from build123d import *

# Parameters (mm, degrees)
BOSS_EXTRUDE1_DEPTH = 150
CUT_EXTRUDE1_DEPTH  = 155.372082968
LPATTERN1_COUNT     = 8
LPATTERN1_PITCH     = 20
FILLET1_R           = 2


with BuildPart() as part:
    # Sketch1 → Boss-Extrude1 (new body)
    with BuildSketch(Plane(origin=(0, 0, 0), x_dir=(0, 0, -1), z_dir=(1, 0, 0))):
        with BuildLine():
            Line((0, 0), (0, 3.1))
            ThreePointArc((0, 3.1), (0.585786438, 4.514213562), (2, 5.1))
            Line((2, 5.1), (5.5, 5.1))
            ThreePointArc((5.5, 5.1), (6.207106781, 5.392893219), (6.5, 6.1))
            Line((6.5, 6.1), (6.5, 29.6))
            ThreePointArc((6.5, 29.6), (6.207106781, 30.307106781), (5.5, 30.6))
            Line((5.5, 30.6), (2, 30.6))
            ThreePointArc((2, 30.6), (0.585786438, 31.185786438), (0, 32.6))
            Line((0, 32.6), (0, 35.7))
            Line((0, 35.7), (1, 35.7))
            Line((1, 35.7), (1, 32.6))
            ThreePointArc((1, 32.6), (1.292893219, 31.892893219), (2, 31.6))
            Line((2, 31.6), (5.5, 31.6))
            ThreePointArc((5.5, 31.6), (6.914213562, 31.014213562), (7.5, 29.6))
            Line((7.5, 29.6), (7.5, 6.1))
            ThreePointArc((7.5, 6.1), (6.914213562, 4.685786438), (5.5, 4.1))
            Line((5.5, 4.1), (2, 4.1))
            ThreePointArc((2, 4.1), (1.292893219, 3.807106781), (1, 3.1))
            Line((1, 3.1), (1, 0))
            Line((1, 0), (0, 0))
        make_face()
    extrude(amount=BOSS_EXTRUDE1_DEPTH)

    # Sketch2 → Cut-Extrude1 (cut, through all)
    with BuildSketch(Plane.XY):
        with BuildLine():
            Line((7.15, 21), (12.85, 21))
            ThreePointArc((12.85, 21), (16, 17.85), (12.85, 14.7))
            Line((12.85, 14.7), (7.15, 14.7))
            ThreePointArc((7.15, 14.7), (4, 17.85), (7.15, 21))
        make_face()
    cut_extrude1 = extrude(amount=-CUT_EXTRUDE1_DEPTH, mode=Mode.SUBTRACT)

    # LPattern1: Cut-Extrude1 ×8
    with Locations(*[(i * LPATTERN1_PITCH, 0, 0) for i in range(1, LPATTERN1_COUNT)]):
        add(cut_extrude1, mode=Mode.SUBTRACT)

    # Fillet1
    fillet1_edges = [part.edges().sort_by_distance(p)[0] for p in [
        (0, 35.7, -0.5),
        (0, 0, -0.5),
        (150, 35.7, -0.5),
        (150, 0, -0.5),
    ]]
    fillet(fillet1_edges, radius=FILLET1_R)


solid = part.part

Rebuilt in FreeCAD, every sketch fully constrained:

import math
import FreeCAD as App
import Part
import Sketcher

V = App.Vector
Q = App.Units.Quantity


def edges_at(feature, points):
    """Names of the edges that pass closest to the given points."""
    edges = feature.Shape.Edges
    near = lambda p: min(range(len(edges)), key=lambda i: edges[i].distToShape(Part.Vertex(*p))[0])
    return sorted({f"Edge{near(p) + 1}" for p in points})

doc = App.newDocument("Part")
params = doc.addObject("Spreadsheet::Sheet", "Params")
for row, (alias, value) in enumerate([
    ("sketch1_radius", "1 mm"),
    ("sketch1_radius2", "2 mm"),
    ("sketch1_width", "3.1 mm"),
    ("sketch1_width2", "23.5 mm"),
    ("sketch1_height", "3.5 mm"),
    ("pad1_length", "150 mm"),
    ("sketch2_radius", "3.15 mm"),
    ("sketch2_width", "5.7 mm"),
    ("linearpattern_pitch", "20 mm"),
    ("fillet_radius", "2 mm"),
], start=1):
    params.set(f"A{row}", alias)
    params.set(f"B{row}", "=" + value)
    params.setAlias(f"B{row}", alias)

body = doc.addObject("PartDesign::Body", "Body")

# Sketch on YZ plane
sketch1 = doc.addObject("Sketcher::SketchObject", "Sketch")
body.addObject(sketch1)
sketch1.AttachmentSupport = (doc.YZ_Plane, [""])
sketch1.MapMode = "FlatFace"
sketch1.addGeometry([
    Part.LineSegment(V(3.1, 0, 0), V(0, 0, 0)),  # 0
    Part.LineSegment(V(0, 0, 0), V(0, -1, 0)),  # 1
    Part.LineSegment(V(0, -1, 0), V(3.1, -1, 0)),  # 2
    Part.ArcOfCircle(Part.Circle(V(3.1, -2, 0), V(0, 0, 1), 1), math.radians(0), math.radians(90)),  # 3
    Part.LineSegment(V(4.1, -2, 0), V(4.1, -5.5, 0)),  # 4
    Part.ArcOfCircle(Part.Circle(V(6.1, -5.5, 0), V(0, 0, 1), 2), math.radians(-180), math.radians(-90)),  # 5
    Part.LineSegment(V(6.1, -7.5, 0), V(29.6, -7.5, 0)),  # 6
    Part.ArcOfCircle(Part.Circle(V(29.6, -5.5, 0), V(0, 0, 1), 2), math.radians(-90), math.radians(0)),  # 7
    Part.LineSegment(V(31.6, -5.5, 0), V(31.6, -2, 0)),  # 8
    Part.ArcOfCircle(Part.Circle(V(32.6, -2, 0), V(0, 0, 1), 1), math.radians(90), math.radians(180)),  # 9
    Part.LineSegment(V(32.6, -1, 0), V(35.7, -1, 0)),  # 10
    Part.LineSegment(V(35.7, -1, 0), V(35.7, 0, 0)),  # 11
    Part.LineSegment(V(35.7, 0, 0), V(32.6, 0, 0)),  # 12
    Part.ArcOfCircle(Part.Circle(V(32.6, -2, 0), V(0, 0, 1), 2), math.radians(90), math.radians(180)),  # 13
    Part.LineSegment(V(30.6, -2, 0), V(30.6, -5.5, 0)),  # 14
    Part.ArcOfCircle(Part.Circle(V(29.6, -5.5, 0), V(0, 0, 1), 1), math.radians(-90), math.radians(0)),  # 15
    Part.LineSegment(V(29.6, -6.5, 0), V(6.1, -6.5, 0)),  # 16
    Part.ArcOfCircle(Part.Circle(V(6.1, -5.5, 0), V(0, 0, 1), 1), math.radians(-180), math.radians(-90)),  # 17
    Part.LineSegment(V(5.1, -5.5, 0), V(5.1, -2, 0)),  # 18
    Part.ArcOfCircle(Part.Circle(V(3.1, -2, 0), V(0, 0, 1), 2), math.radians(0), math.radians(90)),  # 19
], False)
sketch1.addConstraint([
    Sketcher.Constraint("Coincident", 0, 2, 1, 1),
    Sketcher.Constraint("Coincident", 1, 2, 2, 1),
    Sketcher.Constraint("Tangent", 2, 2, 3, 2),
    Sketcher.Constraint("Tangent", 3, 1, 4, 1),
    Sketcher.Constraint("Tangent", 4, 2, 5, 1),
    Sketcher.Constraint("Tangent", 5, 2, 6, 1),
    Sketcher.Constraint("Tangent", 6, 2, 7, 1),
    Sketcher.Constraint("Tangent", 7, 2, 8, 1),
    Sketcher.Constraint("Tangent", 8, 2, 9, 2),
    Sketcher.Constraint("Tangent", 9, 1, 10, 1),
    Sketcher.Constraint("Coincident", 10, 2, 11, 1),
    Sketcher.Constraint("Coincident", 11, 2, 12, 1),
    Sketcher.Constraint("Tangent", 12, 2, 13, 1),
    Sketcher.Constraint("Tangent", 13, 2, 14, 1),
    Sketcher.Constraint("Tangent", 14, 2, 15, 2),
    Sketcher.Constraint("Tangent", 15, 1, 16, 1),
    Sketcher.Constraint("Tangent", 16, 2, 17, 2),
    Sketcher.Constraint("Tangent", 17, 1, 18, 1),
    Sketcher.Constraint("Tangent", 18, 2, 19, 1),
    Sketcher.Constraint("Tangent", 19, 2, 0, 1),
    Sketcher.Constraint("Horizontal", 0),
    Sketcher.Constraint("Vertical", 1),
    Sketcher.Constraint("Horizontal", 2),
    Sketcher.Constraint("Vertical", 4),
    Sketcher.Constraint("Horizontal", 6),
    Sketcher.Constraint("Vertical", 8),
    Sketcher.Constraint("Horizontal", 10),
    Sketcher.Constraint("Vertical", 11),
    Sketcher.Constraint("Horizontal", 12),
    Sketcher.Constraint("Vertical", 14),
    Sketcher.Constraint("Horizontal", 16),
    Sketcher.Constraint("Vertical", 18),
    Sketcher.Constraint("Coincident", 0, 2, -1, 1),
    Sketcher.Constraint("Coincident", 13, 3, 9, 3),
    Sketcher.Constraint("Coincident", 15, 3, 7, 3),
    Sketcher.Constraint("Coincident", 17, 3, 5, 3),
    Sketcher.Constraint("Coincident", 19, 3, 3, 3),
    Sketcher.Constraint("Equal", 5, 7),
    Sketcher.Constraint("Equal", 3, 9),
    Sketcher.Constraint("Equal", 7, 13),
    Sketcher.Constraint("PointOnObject", 11, 2, -1),
    Sketcher.Constraint("Equal", 2, 10),
    Sketcher.Constraint("Radius", 3, Q("1 mm")),
    Sketcher.Constraint("Radius", 5, Q("2 mm")),
    Sketcher.Constraint("DistanceX", 0, 2, 0, 1, Q("3.1 mm")),
    Sketcher.Constraint("DistanceX", 6, 1, 6, 2, Q("23.5 mm")),
    Sketcher.Constraint("DistanceY", 4, 2, 4, 1, Q("3.5 mm")),
])
sketch1.setExpression("Constraints[42]", "Params.sketch1_radius")
sketch1.setExpression("Constraints[43]", "Params.sketch1_radius2")
sketch1.setExpression("Constraints[44]", "Params.sketch1_width")
sketch1.setExpression("Constraints[45]", "Params.sketch1_width2")
sketch1.setExpression("Constraints[46]", "Params.sketch1_height")
pad1 = doc.addObject("PartDesign::Pad", "Pad")
body.addObject(pad1)
pad1.Profile = sketch1
pad1.setExpression("Length", "Params.pad1_length")

# Sketch on XY plane
sketch2 = doc.addObject("Sketcher::SketchObject", "Sketch001")
body.addObject(sketch2)
sketch2.AttachmentSupport = (doc.XY_Plane, [""])
sketch2.MapMode = "FlatFace"
sketch2.addGeometry([
    Part.LineSegment(V(12.8, 21, 0), V(7.2, 21, 0)),
    Part.ArcOfCircle(Part.Circle(V(7.2, 17.9, 0), V(0, 0, 1), 3.1), math.radians(90), math.radians(270)),
    Part.LineSegment(V(7.2, 14.7, 0), V(12.8, 14.7, 0)),
    Part.ArcOfCircle(Part.Circle(V(12.8, 17.9, 0), V(0, 0, 1), 3.1), math.radians(-90), math.radians(90)),
], False)
sketch2.addConstraint([
    Sketcher.Constraint("Tangent", 0, 2, 1, 1),
    Sketcher.Constraint("Tangent", 1, 2, 2, 1),
    Sketcher.Constraint("Tangent", 2, 2, 3, 1),
    Sketcher.Constraint("Tangent", 3, 2, 0, 1),
    Sketcher.Constraint("Horizontal", 0),
    Sketcher.Constraint("Horizontal", 2),
    Sketcher.Constraint("Radius", 1, Q("3.15 mm")),
    Sketcher.Constraint("DistanceX", 0, 2, 0, 1, Q("5.7 mm")),
    Sketcher.Constraint("DistanceY", -1, 1, 0, 2, Q("21 mm")),
    Sketcher.Constraint("DistanceX", -1, 1, 1, 3, Q("7.15 mm")),
])
sketch2.setExpression("Constraints[6]", "Params.sketch2_radius")
sketch2.setExpression("Constraints[7]", "Params.sketch2_width")
pocket1 = doc.addObject("PartDesign::Pocket", "Pocket")
body.addObject(pocket1)
pocket1.Profile = sketch2
pocket1.Type = "ThroughAll"
doc.recompute()

linearpattern = doc.addObject("PartDesign::LinearPattern", "LinearPattern")
body.addObject(linearpattern)
linearpattern.Originals = [pocket1]
linearpattern.Direction = (doc.X_Axis, [""])
linearpattern.Mode = "offset"
linearpattern.setExpression("Offset", "Params.linearpattern_pitch")
linearpattern.Occurrences = 8
body.Tip = linearpattern
doc.recompute()

fillet = doc.addObject("PartDesign::Fillet", "Fillet")
body.addObject(fillet)
fillet.Base = (linearpattern, edges_at(linearpattern, [
    (0, 35.7, -0.5),
    (0, 0, -0.5),
    (150, 35.7, -0.5),
    (150, 0, -0.5),
]))
fillet.setExpression("Radius", "Params.fillet_radius")

doc.recompute()
